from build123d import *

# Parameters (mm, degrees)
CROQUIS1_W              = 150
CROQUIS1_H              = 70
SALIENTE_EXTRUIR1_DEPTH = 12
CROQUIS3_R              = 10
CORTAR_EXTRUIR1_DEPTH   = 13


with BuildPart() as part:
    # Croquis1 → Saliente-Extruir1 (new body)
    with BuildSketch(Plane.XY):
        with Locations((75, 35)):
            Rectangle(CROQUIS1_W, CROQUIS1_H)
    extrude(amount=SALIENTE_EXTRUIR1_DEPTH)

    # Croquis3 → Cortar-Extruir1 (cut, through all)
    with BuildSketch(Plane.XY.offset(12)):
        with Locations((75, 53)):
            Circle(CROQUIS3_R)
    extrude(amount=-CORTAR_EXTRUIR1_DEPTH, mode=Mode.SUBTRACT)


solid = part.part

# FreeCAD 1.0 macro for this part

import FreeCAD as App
import Part
import Sketcher

doc = App.newDocument("Part")
body = doc.addObject("PartDesign::Body", "Body")

# Sketch on XY plane
sketch1 = body.newObject("Sketcher::SketchObject", "Sketch")
sketch1.AttachmentSupport = (doc.getObject("XY_Plane"), [""])
sketch1.MapMode = "FlatFace"
sketch1.addGeometry(Part.LineSegment(App.Vector(0, 70, 0), App.Vector(0, 0, 0)), False)
sketch1.addGeometry(Part.LineSegment(App.Vector(0, 0, 0), App.Vector(150, 0, 0)), False)
sketch1.addGeometry(Part.LineSegment(App.Vector(150, 0, 0), App.Vector(150, 70, 0)), False)
sketch1.addGeometry(Part.LineSegment(App.Vector(150, 70, 0), App.Vector(0, 70, 0)), False)
sketch1.addConstraint(Sketcher.Constraint("Coincident", 0, 2, 1, 1))
sketch1.addConstraint(Sketcher.Constraint("Coincident", 1, 2, 2, 1))
sketch1.addConstraint(Sketcher.Constraint("Coincident", 2, 2, 3, 1))
sketch1.addConstraint(Sketcher.Constraint("Coincident", 3, 2, 0, 1))
sketch1.addConstraint(Sketcher.Constraint("Vertical", 0))
sketch1.addConstraint(Sketcher.Constraint("Horizontal", 1))
sketch1.addConstraint(Sketcher.Constraint("Vertical", 2))
sketch1.addConstraint(Sketcher.Constraint("Horizontal", 3))
sketch1.addConstraint(Sketcher.Constraint("Coincident", 0, 2, -1, 1))
sketch1.addConstraint(Sketcher.Constraint("DistanceX", 1, 1, 1, 2, 150.0))
sketch1.addConstraint(Sketcher.Constraint("DistanceY", 0, 2, 0, 1, 70.0))
pad1 = body.newObject("PartDesign::Pad", "Pad")
pad1.Profile = sketch1
pad1.Length = 12

# Sketch on XY plane
sketch2 = body.newObject("Sketcher::SketchObject", "Sketch001")
sketch2.AttachmentSupport = (doc.getObject("XY_Plane"), [""])
sketch2.MapMode = "FlatFace"
sketch2.AttachmentOffset = App.Placement(App.Vector(0, 0, 12), App.Rotation())
sketch2.addGeometry(Part.Circle(App.Vector(75, 53, 0), App.Vector(0, 0, 1), 10), False)
sketch2.addConstraint(Sketcher.Constraint("Diameter", 0, 20.0))
sketch2.addConstraint(Sketcher.Constraint("DistanceX", -1, 1, 0, 3, 75.0))
sketch2.addConstraint(Sketcher.Constraint("DistanceY", -1, 1, 0, 3, 53.0))
pocket1 = body.newObject("PartDesign::Pocket", "Pocket")
pocket1.Profile = sketch2
pocket1.Type = "ThroughAll"

doc.recompute()
